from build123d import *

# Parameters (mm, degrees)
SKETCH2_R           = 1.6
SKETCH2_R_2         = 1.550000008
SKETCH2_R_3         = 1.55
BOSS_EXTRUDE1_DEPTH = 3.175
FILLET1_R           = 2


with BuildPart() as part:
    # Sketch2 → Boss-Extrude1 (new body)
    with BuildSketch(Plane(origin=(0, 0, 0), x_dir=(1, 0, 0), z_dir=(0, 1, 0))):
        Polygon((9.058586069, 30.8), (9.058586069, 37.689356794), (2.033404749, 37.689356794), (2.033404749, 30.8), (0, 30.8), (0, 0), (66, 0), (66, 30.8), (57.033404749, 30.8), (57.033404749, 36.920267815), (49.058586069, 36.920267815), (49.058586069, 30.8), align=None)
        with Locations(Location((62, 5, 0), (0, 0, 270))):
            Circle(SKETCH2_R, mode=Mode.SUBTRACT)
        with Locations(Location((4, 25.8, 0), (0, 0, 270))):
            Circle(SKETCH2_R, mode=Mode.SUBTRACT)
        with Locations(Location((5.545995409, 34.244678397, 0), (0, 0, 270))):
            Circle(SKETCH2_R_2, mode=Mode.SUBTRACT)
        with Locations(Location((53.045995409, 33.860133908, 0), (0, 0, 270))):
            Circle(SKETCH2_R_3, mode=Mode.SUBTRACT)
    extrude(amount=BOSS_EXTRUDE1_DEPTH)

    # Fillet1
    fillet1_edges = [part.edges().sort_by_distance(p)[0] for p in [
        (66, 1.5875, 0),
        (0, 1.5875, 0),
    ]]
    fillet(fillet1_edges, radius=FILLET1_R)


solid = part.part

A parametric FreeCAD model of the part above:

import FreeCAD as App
import Part
import Sketcher

V = App.Vector
Q = App.Units.Quantity


def edges_at(feature, points):
    """Names of the edges that pass closest to the given points."""
    edges = feature.Shape.Edges
    near = lambda p: min(range(len(edges)), key=lambda i: edges[i].distToShape(Part.Vertex(*p))[0])
    return sorted({f"Edge{near(p) + 1}" for p in points})


def add_polygon(sketch, points):
    """Adds a closed chain of lines whose ends are joined by coincident constraints."""
    first, n = sketch.GeometryCount, len(points)
    for a, b in zip(points, points[1:] + points[:1]):
        sketch.addGeometry(Part.LineSegment(App.Vector(*a, 0), App.Vector(*b, 0)), False)
    for i in range(n):
        sketch.addConstraint(Sketcher.Constraint("Coincident", first + i, 2, first + (i + 1) % n, 1))

doc = App.newDocument("Part")
body = doc.addObject("PartDesign::Body", "Body")

# Sketch on XZ plane
sketch1 = body.newObject("Sketcher::SketchObject", "Sketch")
sketch1.AttachmentSupport = (doc.getObject("XZ_Plane"), [""])
sketch1.MapMode = "FlatFace"
add_polygon(sketch1, [(9.1, -30.8), (9.1, -37.7), (2, -37.7), (2, -30.8), (0, -30.8), (0, 0), (66, 0), (66, -30.8), (57, -30.8), (57, -36.9), (49.1, -36.9), (49.1, -30.8)])  # lines 0-11
sketch1.addGeometry(Part.Circle(V(62, -5, 0), V(0, 0, 1), 1.6), False)  # 12
sketch1.addGeometry(Part.Circle(V(4, -25.8, 0), V(0, 0, 1), 1.6), False)  # 13
sketch1.addGeometry(Part.Circle(V(5.5, -34.2, 0), V(0, 0, 1), 1.6), False)  # 14
sketch1.addGeometry(Part.Circle(V(53, -33.9, 0), V(0, 0, 1), 1.6), False)  # 15
sketch1.addConstraint([
    Sketcher.Constraint("Vertical", 0),
    Sketcher.Constraint("Horizontal", 1),
    Sketcher.Constraint("Vertical", 2),
    Sketcher.Constraint("Horizontal", 3),
    Sketcher.Constraint("Vertical", 4),
    Sketcher.Constraint("Horizontal", 5),
    Sketcher.Constraint("Vertical", 6),
    Sketcher.Constraint("Horizontal", 7),
    Sketcher.Constraint("Vertical", 8),
    Sketcher.Constraint("Horizontal", 9),
    Sketcher.Constraint("Vertical", 10),
    Sketcher.Constraint("Horizontal", 11),
    Sketcher.Constraint("Coincident", 4, 2, -1, 1),
    Sketcher.Constraint("Equal", 12, 13),
    Sketcher.Constraint("Equal", 14, 15),
    Sketcher.Constraint("Horizontal", 3, 2, 6, 2),
    Sketcher.Constraint("Horizontal", 7, 2, 10, 2),
    Sketcher.Constraint("Diameter", 12, Q("3.2 mm")),
    Sketcher.Constraint("Diameter", 14, Q("3.1 mm")),
    Sketcher.Constraint("DistanceX", 5, 1, 5, 2, Q("66 mm")),
    Sketcher.Constraint("DistanceX", 11, 2, 11, 1, Q("40 mm")),
    Sketcher.Constraint("DistanceY", 4, 1, 4, 2, Q("30.8 mm")),
    Sketcher.Constraint("DistanceX", -1, 1, 12, 3, Q("62 mm")),
    Sketcher.Constraint("DistanceY", 12, 3, -1, 1, Q("5 mm")),
    Sketcher.Constraint("DistanceX", -1, 1, 13, 3, Q("4 mm")),
    Sketcher.Constraint("DistanceY", 2, 2, 13, 3, Q("5 mm")),
    Sketcher.Constraint("DistanceX", 14, 3, 15, 3, Q("47.5 mm")),
    Sketcher.Constraint("DistanceX", 1, 2, 1, 1, Q("7.025181 mm")),
    Sketcher.Constraint("DistanceX", 9, 2, 9, 1, Q("7.974819 mm")),
    Sketcher.Constraint("DistanceX", 3, 2, 3, 1, Q("2.033405 mm")),
    Sketcher.Constraint("DistanceY", 0, 2, 0, 1, Q("6.889357 mm")),
    Sketcher.Constraint("DistanceY", 8, 2, 8, 1, Q("6.120268 mm")),
    Sketcher.Constraint("DistanceY", 14, 3, -1, 1, Q("34.244678 mm")),
    Sketcher.Constraint("DistanceX", 14, 3, 0, 2, Q("3.512591 mm")),
    Sketcher.Constraint("DistanceY", 15, 3, -1, 1, Q("33.860134 mm")),
])
pad1 = body.newObject("PartDesign::Pad", "Pad")
pad1.Profile = sketch1
pad1.Length = 3.175
pad1.Reversed = True
doc.recompute()

fillet = body.newObject("PartDesign::Fillet", "Fillet")
fillet.Base = (pad1, edges_at(pad1, [(66, 1.587, 0), (0, 1.587, 0)]))
fillet.Radius = 2

doc.recompute()
